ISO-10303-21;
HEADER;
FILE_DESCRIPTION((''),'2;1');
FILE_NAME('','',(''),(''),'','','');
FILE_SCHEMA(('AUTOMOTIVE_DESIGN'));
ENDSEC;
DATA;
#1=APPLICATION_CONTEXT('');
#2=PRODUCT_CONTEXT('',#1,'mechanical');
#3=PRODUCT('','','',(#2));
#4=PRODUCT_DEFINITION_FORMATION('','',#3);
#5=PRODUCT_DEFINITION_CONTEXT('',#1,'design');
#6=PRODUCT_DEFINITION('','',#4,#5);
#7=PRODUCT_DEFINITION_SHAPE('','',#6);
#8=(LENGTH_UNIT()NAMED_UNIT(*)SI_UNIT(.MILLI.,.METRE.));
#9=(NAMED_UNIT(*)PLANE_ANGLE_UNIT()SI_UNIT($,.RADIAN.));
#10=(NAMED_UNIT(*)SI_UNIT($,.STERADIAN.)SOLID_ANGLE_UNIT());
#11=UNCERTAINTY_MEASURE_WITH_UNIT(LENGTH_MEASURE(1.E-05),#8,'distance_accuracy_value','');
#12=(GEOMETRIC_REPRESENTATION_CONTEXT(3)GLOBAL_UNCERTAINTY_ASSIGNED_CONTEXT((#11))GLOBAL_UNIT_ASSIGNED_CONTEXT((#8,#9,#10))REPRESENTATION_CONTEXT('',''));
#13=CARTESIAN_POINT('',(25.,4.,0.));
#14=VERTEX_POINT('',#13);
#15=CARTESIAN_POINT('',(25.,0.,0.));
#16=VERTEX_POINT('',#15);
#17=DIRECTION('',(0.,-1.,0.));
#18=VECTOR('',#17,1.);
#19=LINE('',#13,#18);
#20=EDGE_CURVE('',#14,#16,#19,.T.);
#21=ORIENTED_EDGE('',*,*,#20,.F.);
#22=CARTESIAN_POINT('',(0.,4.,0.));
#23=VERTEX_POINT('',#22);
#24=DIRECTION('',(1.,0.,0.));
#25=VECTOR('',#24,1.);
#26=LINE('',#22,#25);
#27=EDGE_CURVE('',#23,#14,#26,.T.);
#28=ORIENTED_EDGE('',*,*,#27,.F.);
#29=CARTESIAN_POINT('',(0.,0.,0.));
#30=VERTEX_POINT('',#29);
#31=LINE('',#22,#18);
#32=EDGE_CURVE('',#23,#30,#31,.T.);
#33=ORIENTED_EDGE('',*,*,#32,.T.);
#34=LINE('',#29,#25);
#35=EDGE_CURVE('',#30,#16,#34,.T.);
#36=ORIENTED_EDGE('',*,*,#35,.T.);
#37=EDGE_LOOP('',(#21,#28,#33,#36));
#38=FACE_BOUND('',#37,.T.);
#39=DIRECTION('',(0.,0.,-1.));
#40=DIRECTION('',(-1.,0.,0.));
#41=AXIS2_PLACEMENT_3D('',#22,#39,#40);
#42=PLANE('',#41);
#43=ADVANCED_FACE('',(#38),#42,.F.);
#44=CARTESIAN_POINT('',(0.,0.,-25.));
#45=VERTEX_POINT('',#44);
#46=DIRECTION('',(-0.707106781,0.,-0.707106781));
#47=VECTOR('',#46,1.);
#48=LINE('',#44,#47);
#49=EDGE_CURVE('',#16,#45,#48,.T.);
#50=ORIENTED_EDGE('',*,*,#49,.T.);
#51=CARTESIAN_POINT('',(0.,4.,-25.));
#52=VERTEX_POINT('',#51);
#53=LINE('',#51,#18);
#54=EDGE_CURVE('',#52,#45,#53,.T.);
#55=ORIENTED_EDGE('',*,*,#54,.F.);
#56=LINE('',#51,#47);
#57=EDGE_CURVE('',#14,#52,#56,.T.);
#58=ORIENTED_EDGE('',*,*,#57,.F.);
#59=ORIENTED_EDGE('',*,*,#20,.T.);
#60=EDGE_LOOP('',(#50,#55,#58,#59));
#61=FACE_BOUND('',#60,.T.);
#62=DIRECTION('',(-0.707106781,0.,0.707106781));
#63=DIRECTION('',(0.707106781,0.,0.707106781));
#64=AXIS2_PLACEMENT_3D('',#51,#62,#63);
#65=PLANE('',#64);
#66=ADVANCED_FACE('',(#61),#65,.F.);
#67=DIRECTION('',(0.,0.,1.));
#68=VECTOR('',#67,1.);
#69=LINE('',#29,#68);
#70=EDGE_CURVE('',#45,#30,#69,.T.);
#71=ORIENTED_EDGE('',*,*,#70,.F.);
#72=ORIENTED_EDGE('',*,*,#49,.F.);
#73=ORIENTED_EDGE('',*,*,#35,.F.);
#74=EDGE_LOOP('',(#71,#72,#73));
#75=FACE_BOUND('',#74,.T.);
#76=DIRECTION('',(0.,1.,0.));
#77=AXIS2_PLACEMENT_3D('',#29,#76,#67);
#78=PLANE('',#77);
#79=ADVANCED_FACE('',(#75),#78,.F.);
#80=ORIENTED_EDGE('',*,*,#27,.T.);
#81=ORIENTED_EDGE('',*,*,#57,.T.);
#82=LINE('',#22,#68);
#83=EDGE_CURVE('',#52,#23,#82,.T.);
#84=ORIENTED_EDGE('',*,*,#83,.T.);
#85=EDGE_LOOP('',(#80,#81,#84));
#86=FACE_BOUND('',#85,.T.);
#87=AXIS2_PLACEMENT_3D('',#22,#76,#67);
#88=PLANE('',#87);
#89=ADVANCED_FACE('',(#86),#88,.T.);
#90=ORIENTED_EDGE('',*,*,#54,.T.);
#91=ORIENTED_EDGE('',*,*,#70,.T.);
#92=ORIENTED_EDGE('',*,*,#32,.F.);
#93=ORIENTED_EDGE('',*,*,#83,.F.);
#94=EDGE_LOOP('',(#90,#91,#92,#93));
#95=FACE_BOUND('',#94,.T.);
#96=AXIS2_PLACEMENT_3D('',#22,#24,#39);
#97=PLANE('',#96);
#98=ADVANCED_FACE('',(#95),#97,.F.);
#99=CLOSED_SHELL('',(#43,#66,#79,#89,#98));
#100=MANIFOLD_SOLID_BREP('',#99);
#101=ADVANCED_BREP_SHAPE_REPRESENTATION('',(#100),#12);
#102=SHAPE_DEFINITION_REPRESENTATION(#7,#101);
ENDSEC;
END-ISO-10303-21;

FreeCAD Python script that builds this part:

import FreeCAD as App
import Part
import Sketcher

V = App.Vector

doc = App.newDocument("Part")
body = doc.addObject("PartDesign::Body", "Body")

# Sketch on XZ plane
sketch1 = body.newObject("Sketcher::SketchObject", "Sketch")
sketch1.AttachmentSupport = (doc.getObject("XZ_Plane"), [""])
sketch1.MapMode = "FlatFace"
sketch1.addGeometry(Part.LineSegment(V(0, -25, 0), V(0, 0, 0)), False)
sketch1.addGeometry(Part.LineSegment(V(0, 0, 0), V(25, 0, 0)), False)
sketch1.addGeometry(Part.LineSegment(V(25, 0, 0), V(0, -25, 0)), False)
sketch1.addConstraint(Sketcher.Constraint("Coincident", 0, 2, 1, 1))
sketch1.addConstraint(Sketcher.Constraint("Coincident", 1, 2, 2, 1))
sketch1.addConstraint(Sketcher.Constraint("Coincident", 2, 2, 0, 1))
sketch1.addConstraint(Sketcher.Constraint("Vertical", 0))
sketch1.addConstraint(Sketcher.Constraint("Horizontal", 1))
sketch1.addConstraint(Sketcher.Constraint("Coincident", 0, 2, -1, 1))
sketch1.addConstraint(Sketcher.Constraint("Equal", 1, 0))
sketch1.addConstraint(Sketcher.Constraint("DistanceX", 1, 1, 1, 2, 25.0))
pad1 = body.newObject("PartDesign::Pad", "Pad")
pad1.Profile = sketch1
pad1.Length = 4
pad1.Reversed = True

doc.recompute()
